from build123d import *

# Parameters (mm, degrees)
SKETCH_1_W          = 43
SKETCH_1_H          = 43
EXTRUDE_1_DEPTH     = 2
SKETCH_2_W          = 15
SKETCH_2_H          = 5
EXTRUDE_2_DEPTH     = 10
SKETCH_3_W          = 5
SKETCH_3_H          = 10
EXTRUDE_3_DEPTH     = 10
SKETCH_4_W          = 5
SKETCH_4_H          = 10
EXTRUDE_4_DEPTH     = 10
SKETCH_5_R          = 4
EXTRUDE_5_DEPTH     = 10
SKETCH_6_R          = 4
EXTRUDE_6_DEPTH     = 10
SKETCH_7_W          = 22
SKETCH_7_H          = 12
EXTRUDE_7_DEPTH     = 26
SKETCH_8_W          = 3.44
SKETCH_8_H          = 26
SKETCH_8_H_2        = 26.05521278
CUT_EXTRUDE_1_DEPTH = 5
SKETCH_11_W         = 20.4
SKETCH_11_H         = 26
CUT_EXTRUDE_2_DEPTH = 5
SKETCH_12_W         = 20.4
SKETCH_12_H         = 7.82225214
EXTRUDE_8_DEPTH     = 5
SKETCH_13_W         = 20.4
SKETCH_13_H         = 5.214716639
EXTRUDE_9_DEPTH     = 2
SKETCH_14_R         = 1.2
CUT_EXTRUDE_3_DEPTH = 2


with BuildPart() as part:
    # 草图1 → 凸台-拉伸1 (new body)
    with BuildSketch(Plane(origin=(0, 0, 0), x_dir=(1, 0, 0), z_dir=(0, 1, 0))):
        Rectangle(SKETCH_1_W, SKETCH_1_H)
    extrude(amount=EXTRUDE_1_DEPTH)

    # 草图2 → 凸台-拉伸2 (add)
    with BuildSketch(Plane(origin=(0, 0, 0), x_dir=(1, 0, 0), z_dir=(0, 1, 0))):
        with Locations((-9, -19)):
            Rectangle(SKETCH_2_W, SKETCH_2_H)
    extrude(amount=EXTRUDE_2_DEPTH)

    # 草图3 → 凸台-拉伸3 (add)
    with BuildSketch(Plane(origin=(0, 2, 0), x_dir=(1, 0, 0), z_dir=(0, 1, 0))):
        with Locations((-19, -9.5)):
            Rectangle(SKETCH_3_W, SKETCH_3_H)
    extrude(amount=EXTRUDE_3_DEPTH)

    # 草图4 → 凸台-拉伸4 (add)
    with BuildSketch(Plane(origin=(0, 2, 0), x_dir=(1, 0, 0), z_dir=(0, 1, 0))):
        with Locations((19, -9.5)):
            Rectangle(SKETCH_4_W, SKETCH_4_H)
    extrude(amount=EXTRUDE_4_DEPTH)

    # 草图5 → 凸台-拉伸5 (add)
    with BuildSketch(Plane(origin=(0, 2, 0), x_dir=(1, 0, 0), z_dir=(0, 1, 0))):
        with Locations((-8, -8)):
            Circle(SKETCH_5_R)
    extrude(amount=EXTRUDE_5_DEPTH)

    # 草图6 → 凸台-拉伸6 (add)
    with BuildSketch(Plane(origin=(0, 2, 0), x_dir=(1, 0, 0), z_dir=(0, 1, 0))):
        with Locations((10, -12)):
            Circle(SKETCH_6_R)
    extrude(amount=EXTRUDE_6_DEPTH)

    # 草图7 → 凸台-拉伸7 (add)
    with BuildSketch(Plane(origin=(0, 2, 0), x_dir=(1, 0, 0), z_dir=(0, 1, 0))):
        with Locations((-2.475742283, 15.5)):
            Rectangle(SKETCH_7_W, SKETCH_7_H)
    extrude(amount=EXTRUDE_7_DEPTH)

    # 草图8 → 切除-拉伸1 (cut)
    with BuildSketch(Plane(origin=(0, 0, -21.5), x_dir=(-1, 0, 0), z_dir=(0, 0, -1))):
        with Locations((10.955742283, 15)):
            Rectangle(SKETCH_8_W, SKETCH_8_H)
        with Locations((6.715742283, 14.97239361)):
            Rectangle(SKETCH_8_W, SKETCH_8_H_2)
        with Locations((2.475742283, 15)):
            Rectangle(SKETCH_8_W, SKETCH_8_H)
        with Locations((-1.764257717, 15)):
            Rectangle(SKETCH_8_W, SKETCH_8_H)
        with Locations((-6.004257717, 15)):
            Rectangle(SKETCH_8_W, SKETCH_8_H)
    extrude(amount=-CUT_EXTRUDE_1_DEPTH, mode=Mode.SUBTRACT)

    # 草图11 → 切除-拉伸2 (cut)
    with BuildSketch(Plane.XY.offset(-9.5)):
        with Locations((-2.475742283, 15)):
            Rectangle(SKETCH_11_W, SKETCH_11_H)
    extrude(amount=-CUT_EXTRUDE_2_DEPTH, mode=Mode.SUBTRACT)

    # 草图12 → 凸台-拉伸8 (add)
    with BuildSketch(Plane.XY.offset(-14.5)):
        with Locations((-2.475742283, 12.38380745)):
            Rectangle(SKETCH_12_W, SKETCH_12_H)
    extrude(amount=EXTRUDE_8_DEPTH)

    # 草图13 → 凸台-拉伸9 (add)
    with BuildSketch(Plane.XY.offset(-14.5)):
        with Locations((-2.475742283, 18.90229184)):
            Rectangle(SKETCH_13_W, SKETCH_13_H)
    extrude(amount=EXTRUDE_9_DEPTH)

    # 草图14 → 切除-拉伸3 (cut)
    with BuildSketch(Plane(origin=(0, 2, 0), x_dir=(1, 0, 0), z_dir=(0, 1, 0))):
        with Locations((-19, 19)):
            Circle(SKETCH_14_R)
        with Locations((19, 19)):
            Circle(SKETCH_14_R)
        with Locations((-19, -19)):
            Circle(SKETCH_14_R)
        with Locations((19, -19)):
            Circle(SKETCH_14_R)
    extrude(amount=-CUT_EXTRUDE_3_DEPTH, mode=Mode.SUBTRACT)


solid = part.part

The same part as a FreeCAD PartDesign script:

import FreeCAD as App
import Part
import Sketcher


def add_polygon(sketch, points):
    """Adds a closed chain of lines whose ends are joined by coincident constraints."""
    first, n = sketch.GeometryCount, len(points)
    for a, b in zip(points, points[1:] + points[:1]):
        sketch.addGeometry(Part.LineSegment(App.Vector(*a, 0), App.Vector(*b, 0)), False)
    for i in range(n):
        sketch.addConstraint(Sketcher.Constraint("Coincident", first + i, 2, first + (i + 1) % n, 1))

doc = App.newDocument("Part")
body = doc.addObject("PartDesign::Body", "Body")

sketch1 = doc.addObject("Sketcher::SketchObject", "Sketch")
body.addObject(sketch1)
sketch1.AttachmentSupport = (doc.XZ_Plane, [""])
sketch1.MapMode = "FlatFace"
add_polygon(sketch1, [(-21.5, -21.5), (-21.5, 21.5), (21.5, 21.5), (21.5, -21.5)])
sketch1.addConstraint([
    Sketcher.Constraint("Vertical", 0),
    Sketcher.Constraint("Horizontal", 1),
    Sketcher.Constraint("Vertical", 2),
    Sketcher.Constraint("Horizontal", 3),
    Sketcher.Constraint("Symmetric", 0, 2, 2, 2, -1, 1),
    Sketcher.Constraint("Equal", 3, 0),
    Sketcher.Constraint("DistanceX", 1, 1, 1, 2, 43.0),
])
pad1 = doc.addObject("PartDesign::Pad", "Pad")
body.addObject(pad1)
pad1.Profile = sketch1
pad1.Length = 2
pad1.Reversed = True

sketch2 = doc.addObject("Sketcher::SketchObject", "Sketch001")
body.addObject(sketch2)
sketch2.AttachmentSupport = (doc.XZ_Plane, [""])
sketch2.MapMode = "FlatFace"
add_polygon(sketch2, [(-16.5, 16.5), (-16.5, 21.5), (-1.5, 21.5), (-1.5, 16.5)])
sketch2.addConstraint([
    Sketcher.Constraint("Vertical", 0),
    Sketcher.Constraint("Horizontal", 1),
    Sketcher.Constraint("Vertical", 2),
    Sketcher.Constraint("Horizontal", 3),
    Sketcher.Constraint("DistanceX", 1, 1, 1, 2, 15.0),
    Sketcher.Constraint("DistanceY", 0, 1, 0, 2, 5.0),
    Sketcher.Constraint("DistanceX", 0, 2, -1, 1, 16.5),
    Sketcher.Constraint("DistanceY", -1, 1, 0, 2, 21.5),
])
pad2 = doc.addObject("PartDesign::Pad", "Pad001")
body.addObject(pad2)
pad2.Profile = sketch2
pad2.Length = 10
pad2.Reversed = True

sketch3 = doc.addObject("Sketcher::SketchObject", "Sketch002")
body.addObject(sketch3)
sketch3.AttachmentSupport = (doc.XZ_Plane, [""])
sketch3.MapMode = "FlatFace"
sketch3.AttachmentOffset = App.Placement(App.Vector(0, 0, -2), App.Rotation())
add_polygon(sketch3, [(-21.5, 4.5), (-21.5, 14.5), (-16.5, 14.5), (-16.5, 4.5)])
sketch3.addConstraint([
    Sketcher.Constraint("Vertical", 0),
    Sketcher.Constraint("Horizontal", 1),
    Sketcher.Constraint("Vertical", 2),
    Sketcher.Constraint("Horizontal", 3),
    Sketcher.Constraint("DistanceX", 1, 1, 1, 2, 5.0),
    Sketcher.Constraint("DistanceY", 0, 1, 0, 2, 10.0),
    Sketcher.Constraint("DistanceX", 0, 2, -1, 1, 21.5),
    Sketcher.Constraint("DistanceY", -1, 1, 0, 2, 14.5),
])
pad3 = doc.addObject("PartDesign::Pad", "Pad002")
body.addObject(pad3)
pad3.Profile = sketch3
pad3.Length = 10
pad3.Reversed = True

sketch4 = doc.addObject("Sketcher::SketchObject", "Sketch003")
body.addObject(sketch4)
sketch4.AttachmentSupport = (doc.XZ_Plane, [""])
sketch4.MapMode = "FlatFace"
sketch4.AttachmentOffset = App.Placement(App.Vector(0, 0, -2), App.Rotation())
add_polygon(sketch4, [(16.5, 4.5), (16.5, 14.5), (21.5, 14.5), (21.5, 4.5)])
sketch4.addConstraint([
    Sketcher.Constraint("Vertical", 0),
    Sketcher.Constraint("Horizontal", 1),
    Sketcher.Constraint("Vertical", 2),
    Sketcher.Constraint("Horizontal", 3),
    Sketcher.Constraint("DistanceX", 1, 1, 1, 2, 5.0),
    Sketcher.Constraint("DistanceY", 0, 1, 0, 2, 10.0),
    Sketcher.Constraint("DistanceX", -1, 1, 0, 2, 16.5),
    Sketcher.Constraint("DistanceY", -1, 1, 0, 2, 14.5),
])
pad4 = doc.addObject("PartDesign::Pad", "Pad003")
body.addObject(pad4)
pad4.Profile = sketch4
pad4.Length = 10
pad4.Reversed = True

sketch5 = doc.addObject("Sketcher::SketchObject", "Sketch004")
body.addObject(sketch5)
sketch5.AttachmentSupport = (doc.XZ_Plane, [""])
sketch5.MapMode = "FlatFace"
sketch5.AttachmentOffset = App.Placement(App.Vector(0, 0, -2), App.Rotation())
sketch5.addGeometry(Part.Circle(App.Vector(-8, 8, 0), App.Vector(0, 0, 1), 4), False)
sketch5.addConstraint([
    Sketcher.Constraint("Diameter", 0, 8.0),
    Sketcher.Constraint("DistanceX", 0, 3, -1, 1, 8.0),
    Sketcher.Constraint("DistanceY", -1, 1, 0, 3, 8.0),
])
pad5 = doc.addObject("PartDesign::Pad", "Pad004")
body.addObject(pad5)
pad5.Profile = sketch5
pad5.Length = 10
pad5.Reversed = True

sketch6 = doc.addObject("Sketcher::SketchObject", "Sketch005")
body.addObject(sketch6)
sketch6.AttachmentSupport = (doc.XZ_Plane, [""])
sketch6.MapMode = "FlatFace"
sketch6.AttachmentOffset = App.Placement(App.Vector(0, 0, -2), App.Rotation())
sketch6.addGeometry(Part.Circle(App.Vector(10, 12, 0), App.Vector(0, 0, 1), 4), False)
sketch6.addConstraint([
    Sketcher.Constraint("Diameter", 0, 8.0),
    Sketcher.Constraint("DistanceX", -1, 1, 0, 3, 10.0),
    Sketcher.Constraint("DistanceY", -1, 1, 0, 3, 12.0),
])
pad6 = doc.addObject("PartDesign::Pad", "Pad005")
body.addObject(pad6)
pad6.Profile = sketch6
pad6.Length = 10
pad6.Reversed = True

sketch7 = doc.addObject("Sketcher::SketchObject", "Sketch006")
body.addObject(sketch7)
sketch7.AttachmentSupport = (doc.XZ_Plane, [""])
sketch7.MapMode = "FlatFace"
sketch7.AttachmentOffset = App.Placement(App.Vector(0, 0, -2), App.Rotation())
add_polygon(sketch7, [(-13.475742, -21.5), (-13.475742, -9.5), (8.524258, -9.5), (8.524258, -21.5)])
sketch7.addConstraint([
    Sketcher.Constraint("Vertical", 0),
    Sketcher.Constraint("Horizontal", 1),
    Sketcher.Constraint("Vertical", 2),
    Sketcher.Constraint("Horizontal", 3),
    Sketcher.Constraint("DistanceX", 1, 1, 1, 2, 22.0),
    Sketcher.Constraint("DistanceY", 0, 1, 0, 2, 12.0),
    Sketcher.Constraint("DistanceY", 0, 2, -1, 1, 9.5),
    Sketcher.Constraint("DistanceX", 0, 2, -1, 1, 13.475742),
])
pad7 = doc.addObject("PartDesign::Pad", "Pad006")
body.addObject(pad7)
pad7.Profile = sketch7
pad7.Length = 26
pad7.Reversed = True

sketch8 = doc.addObject("Sketcher::SketchObject", "Sketch007")
body.addObject(sketch8)
sketch8.AttachmentSupport = (doc.XY_Plane, [""])
sketch8.MapMode = "FlatFace"
sketch8.AttachmentOffset = App.Placement(App.Vector(0, 0, -21.5), App.Rotation())
add_polygon(sketch8, [(-9.235742, 28), (-9.235742, 2), (-12.675742, 2), (-12.675742, 28)])
add_polygon(sketch8, [(-4.995742, 28), (-4.995742, 1.944787), (-8.435742, 1.944787), (-8.435742, 28)])
add_polygon(sketch8, [(-0.755742, 28), (-0.755742, 2), (-4.195742, 2), (-4.195742, 28)])
add_polygon(sketch8, [(3.484258, 28), (3.484258, 2), (0.044258, 2), (0.044258, 28)])
add_polygon(sketch8, [(7.724258, 28), (7.724258, 2), (4.284258, 2), (4.284258, 28)])
sketch8.addConstraint([
    Sketcher.Constraint("Vertical", 0),
    Sketcher.Constraint("Horizontal", 1),
    Sketcher.Constraint("Vertical", 2),
    Sketcher.Constraint("Horizontal", 3),
    Sketcher.Constraint("Vertical", 4),
    Sketcher.Constraint("Horizontal", 5),
    Sketcher.Constraint("Vertical", 6),
    Sketcher.Constraint("Horizontal", 7),
    Sketcher.Constraint("Vertical", 8),
    Sketcher.Constraint("Horizontal", 9),
    Sketcher.Constraint("Vertical", 10),
    Sketcher.Constraint("Horizontal", 11),
    Sketcher.Constraint("Vertical", 12),
    Sketcher.Constraint("Horizontal", 13),
    Sketcher.Constraint("Vertical", 14),
    Sketcher.Constraint("Horizontal", 15),
    Sketcher.Constraint("Vertical", 16),
    Sketcher.Constraint("Horizontal", 17),
    Sketcher.Constraint("Vertical", 18),
    Sketcher.Constraint("Horizontal", 19),
    Sketcher.Constraint("Horizontal", 3, 2, 6, 2),
    Sketcher.Constraint("Horizontal", 1, 2, 8, 2),
    Sketcher.Constraint("Horizontal", 7, 2, 10, 2),
    Sketcher.Constraint("Horizontal", 9, 2, 12, 2),
    Sketcher.Constraint("Horizontal", 11, 2, 14, 2),
    Sketcher.Constraint("Horizontal", 13, 2, 16, 2),
    Sketcher.Constraint("Horizontal", 15, 2, 18, 2),
    Sketcher.Constraint("Equal", 3, 5),
    Sketcher.Constraint("Equal", 7, 9),
    Sketcher.Constraint("Equal", 11, 13),
    Sketcher.Constraint("Equal", 15, 17),
    Sketcher.Constraint("DistanceY", 0, 2, 0, 1, 26.0),
    Sketcher.Constraint("DistanceY", -1, 1, 0, 2, 2.0),
    Sketcher.Constraint("DistanceX", 1, 2, 1, 1, 3.44),
    Sketcher.Constraint("DistanceX", 0, 2, 5, 2, 0.8),
    Sketcher.Constraint("DistanceX", 4, 2, 9, 2, 0.8),
    Sketcher.Constraint("DistanceX", 8, 2, 13, 2, 0.8),
    Sketcher.Constraint("DistanceX", 12, 2, 17, 2, 0.8),
    Sketcher.Constraint("DistanceY", 4, 2, 4, 1, 26.055213),
    Sketcher.Constraint("DistanceX", 0, 2, -1, 1, 9.235742),
])
pocket1 = doc.addObject("PartDesign::Pocket", "Pocket")
body.addObject(pocket1)
pocket1.Profile = sketch8
pocket1.Length = 5
pocket1.Reversed = True

sketch9 = doc.addObject("Sketcher::SketchObject", "Sketch008")
body.addObject(sketch9)
sketch9.AttachmentSupport = (doc.XY_Plane, [""])
sketch9.MapMode = "FlatFace"
sketch9.AttachmentOffset = App.Placement(App.Vector(0, 0, -9.5), App.Rotation())
add_polygon(sketch9, [(-12.675742, 28), (-12.675742, 2), (7.724258, 2), (7.724258, 28)])
sketch9.addConstraint([
    Sketcher.Constraint("Vertical", 0),
    Sketcher.Constraint("Horizontal", 1),
    Sketcher.Constraint("Vertical", 2),
    Sketcher.Constraint("Horizontal", 3),
    Sketcher.Constraint("DistanceY", 0, 2, 0, 1, 26.0),
    Sketcher.Constraint("DistanceX", 1, 1, 1, 2, 20.4),
    Sketcher.Constraint("DistanceY", -1, 1, 0, 2, 2.0),
    Sketcher.Constraint("DistanceX", 0, 2, -1, 1, 12.675742),
])
pocket2 = doc.addObject("PartDesign::Pocket", "Pocket001")
body.addObject(pocket2)
pocket2.Profile = sketch9
pocket2.Length = 5

sketch10 = doc.addObject("Sketcher::SketchObject", "Sketch009")
body.addObject(sketch10)
sketch10.AttachmentSupport = (doc.XY_Plane, [""])
sketch10.MapMode = "FlatFace"
sketch10.AttachmentOffset = App.Placement(App.Vector(0, 0, -14.5), App.Rotation())
add_polygon(sketch10, [(-12.675742, 16.294934), (-12.675742, 8.472681), (7.724258, 8.472681), (7.724258, 16.294934)])
sketch10.addConstraint([
    Sketcher.Constraint("Vertical", 0),
    Sketcher.Constraint("Horizontal", 1),
    Sketcher.Constraint("Vertical", 2),
    Sketcher.Constraint("Horizontal", 3),
    Sketcher.Constraint("DistanceX", 1, 1, 1, 2, 20.4),
    Sketcher.Constraint("DistanceY", 0, 2, 0, 1, 7.822252),
    Sketcher.Constraint("DistanceY", -1, 1, 0, 2, 8.472681),
    Sketcher.Constraint("DistanceX", 0, 2, -1, 1, 12.675742),
])
pad8 = doc.addObject("PartDesign::Pad", "Pad007")
body.addObject(pad8)
pad8.Profile = sketch10
pad8.Length = 5

sketch11 = doc.addObject("Sketcher::SketchObject", "Sketch010")
body.addObject(sketch11)
sketch11.AttachmentSupport = (doc.XY_Plane, [""])
sketch11.MapMode = "FlatFace"
sketch11.AttachmentOffset = App.Placement(App.Vector(0, 0, -14.5), App.Rotation())
add_polygon(sketch11, [(-12.675742, 21.50965), (-12.675742, 16.294934), (7.724258, 16.294934), (7.724258, 21.50965)])
sketch11.addConstraint([
    Sketcher.Constraint("Vertical", 0),
    Sketcher.Constraint("Horizontal", 1),
    Sketcher.Constraint("Vertical", 2),
    Sketcher.Constraint("Horizontal", 3),
    Sketcher.Constraint("DistanceX", 1, 1, 1, 2, 20.4),
    Sketcher.Constraint("DistanceY", 0, 2, 0, 1, 5.214717),
    Sketcher.Constraint("DistanceY", -1, 1, 2, 2, 21.50965),
    Sketcher.Constraint("DistanceX", 0, 2, -1, 1, 12.675742),
])
pad9 = doc.addObject("PartDesign::Pad", "Pad008")
body.addObject(pad9)
pad9.Profile = sketch11
pad9.Length = 2

sketch12 = doc.addObject("Sketcher::SketchObject", "Sketch011")
body.addObject(sketch12)
sketch12.AttachmentSupport = (doc.XZ_Plane, [""])
sketch12.MapMode = "FlatFace"
sketch12.AttachmentOffset = App.Placement(App.Vector(0, 0, -2), App.Rotation())
sketch12.addGeometry([
    Part.Circle(App.Vector(-19, -19, 0), App.Vector(0, 0, 1), 1.2),
    Part.Circle(App.Vector(19, -19, 0), App.Vector(0, 0, 1), 1.2),
    Part.Circle(App.Vector(-19, 19, 0), App.Vector(0, 0, 1), 1.2),
    Part.Circle(App.Vector(19, 19, 0), App.Vector(0, 0, 1), 1.2),
], False)
sketch12.addConstraint([
    Sketcher.Constraint("Equal", 0, 1),
    Sketcher.Constraint("Equal", 1, 2),
    Sketcher.Constraint("Equal", 2, 3),
    Sketcher.Constraint("Symmetric", 1, 3, 2, 3, -1, 1),
    Sketcher.Constraint("Symmetric", 0, 3, 3, 3, -1, 1),
    Sketcher.Constraint("Symmetric", 0, 3, 1, 3, -2),
    Sketcher.Constraint("Diameter", 0, 2.4),
    Sketcher.Constraint("DistanceX", 0, 3, -1, 1, 19.0),
    Sketcher.Constraint("DistanceY", 0, 3, -1, 1, 19.0),
])
pocket3 = doc.addObject("PartDesign::Pocket", "Pocket002")
body.addObject(pocket3)
pocket3.Profile = sketch12
pocket3.Length = 2
pocket3.Reversed = True

doc.recompute()
